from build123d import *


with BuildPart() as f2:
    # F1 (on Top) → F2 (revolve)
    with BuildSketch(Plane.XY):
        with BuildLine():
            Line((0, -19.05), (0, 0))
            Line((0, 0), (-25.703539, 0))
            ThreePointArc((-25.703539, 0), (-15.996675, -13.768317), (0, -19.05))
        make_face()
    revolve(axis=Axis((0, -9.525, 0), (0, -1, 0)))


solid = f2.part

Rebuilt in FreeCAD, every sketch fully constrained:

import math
import FreeCAD as App
import Part
import Sketcher

V = App.Vector
Q = App.Units.Quantity

doc = App.newDocument("Part")
body = doc.addObject("PartDesign::Body", "Body")

sketch1 = doc.addObject("Sketcher::SketchObject", "Sketch")
body.addObject(sketch1)
sketch1.AttachmentSupport = (doc.XY_Plane, [""])
sketch1.MapMode = "FlatFace"
sketch1.addGeometry([
    Part.LineSegment(V(0, -19.05, 0), V(0, 0, 0)),
    Part.LineSegment(V(0, 0, 0), V(-25.703539, 0, 0)),
    Part.ArcOfCircle(Part.Circle(V(0, 7.815471, 0), V(0, 0, 1), 26.865471), math.radians(-163.087474), math.radians(-90.000001)),
], False)
sketch1.addConstraint([
    Sketcher.Constraint("Coincident", 0, 2, 1, 1),
    Sketcher.Constraint("Coincident", 1, 2, 2, 1),
    Sketcher.Constraint("Coincident", 2, 2, 0, 1),
    Sketcher.Constraint("Vertical", 0),
    Sketcher.Constraint("Horizontal", 1),
    Sketcher.Constraint("Coincident", 0, 2, -1, 1),
    Sketcher.Constraint("PointOnObject", 2, 3, -2),
    Sketcher.Constraint("DistanceY", 0, 1, 0, 2, Q("0.75 in")),
    Sketcher.Constraint("Radius", 2, 26.865471),
])
revolution = doc.addObject("PartDesign::Revolution", "Revolution")
body.addObject(revolution)
revolution.Profile = sketch1
revolution.ReferenceAxis = (sketch1, ["V_Axis"])
revolution.Angle = 360

doc.recompute()
